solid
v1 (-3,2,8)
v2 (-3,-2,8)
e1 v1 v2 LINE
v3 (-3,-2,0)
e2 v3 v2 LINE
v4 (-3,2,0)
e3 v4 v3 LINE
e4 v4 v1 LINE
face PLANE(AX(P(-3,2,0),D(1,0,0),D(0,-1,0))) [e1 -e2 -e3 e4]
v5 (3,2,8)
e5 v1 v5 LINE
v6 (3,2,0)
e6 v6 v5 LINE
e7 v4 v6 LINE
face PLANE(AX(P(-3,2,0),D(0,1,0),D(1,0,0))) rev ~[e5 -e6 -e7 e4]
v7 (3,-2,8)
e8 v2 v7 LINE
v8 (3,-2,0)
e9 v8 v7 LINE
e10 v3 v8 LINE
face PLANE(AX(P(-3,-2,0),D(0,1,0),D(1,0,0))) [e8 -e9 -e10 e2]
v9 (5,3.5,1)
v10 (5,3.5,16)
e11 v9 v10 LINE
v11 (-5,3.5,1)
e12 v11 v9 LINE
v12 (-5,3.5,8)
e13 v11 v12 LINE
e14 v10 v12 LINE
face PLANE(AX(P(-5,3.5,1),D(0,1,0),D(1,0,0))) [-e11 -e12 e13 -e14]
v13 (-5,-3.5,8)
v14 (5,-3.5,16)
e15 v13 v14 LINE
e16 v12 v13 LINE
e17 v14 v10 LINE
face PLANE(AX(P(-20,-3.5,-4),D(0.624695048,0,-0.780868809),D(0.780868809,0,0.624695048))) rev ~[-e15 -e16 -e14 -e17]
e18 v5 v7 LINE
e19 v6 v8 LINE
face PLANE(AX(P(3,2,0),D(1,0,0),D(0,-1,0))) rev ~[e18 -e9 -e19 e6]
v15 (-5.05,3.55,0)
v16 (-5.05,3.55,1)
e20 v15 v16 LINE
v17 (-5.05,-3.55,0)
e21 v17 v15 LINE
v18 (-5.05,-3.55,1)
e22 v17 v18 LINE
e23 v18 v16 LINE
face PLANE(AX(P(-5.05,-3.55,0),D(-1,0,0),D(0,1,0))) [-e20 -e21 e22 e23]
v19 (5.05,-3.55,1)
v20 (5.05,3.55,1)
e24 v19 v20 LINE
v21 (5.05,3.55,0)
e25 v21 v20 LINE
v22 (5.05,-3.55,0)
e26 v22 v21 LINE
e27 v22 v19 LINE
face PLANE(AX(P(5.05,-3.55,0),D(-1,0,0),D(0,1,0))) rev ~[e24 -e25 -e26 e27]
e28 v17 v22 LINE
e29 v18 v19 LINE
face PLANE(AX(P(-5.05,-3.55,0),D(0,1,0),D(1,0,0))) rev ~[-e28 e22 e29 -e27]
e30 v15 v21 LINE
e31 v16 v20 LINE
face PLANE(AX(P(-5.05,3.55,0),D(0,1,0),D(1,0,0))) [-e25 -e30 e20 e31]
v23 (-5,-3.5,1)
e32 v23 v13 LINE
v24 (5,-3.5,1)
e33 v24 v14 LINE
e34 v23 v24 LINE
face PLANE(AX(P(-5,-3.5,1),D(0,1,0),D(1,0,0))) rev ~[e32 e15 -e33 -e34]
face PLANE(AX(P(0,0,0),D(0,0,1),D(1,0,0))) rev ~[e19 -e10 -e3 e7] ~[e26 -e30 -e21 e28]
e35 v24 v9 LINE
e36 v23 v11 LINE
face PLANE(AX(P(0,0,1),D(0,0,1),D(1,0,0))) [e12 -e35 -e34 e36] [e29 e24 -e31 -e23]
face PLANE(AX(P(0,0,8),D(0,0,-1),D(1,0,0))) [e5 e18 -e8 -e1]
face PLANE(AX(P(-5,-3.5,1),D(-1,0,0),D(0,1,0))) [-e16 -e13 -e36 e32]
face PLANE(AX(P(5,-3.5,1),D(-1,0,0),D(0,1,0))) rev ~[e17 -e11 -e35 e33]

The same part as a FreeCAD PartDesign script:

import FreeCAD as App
import Part
import Sketcher

V = App.Vector


def add_polygon(sketch, points):
    """Adds a closed chain of lines whose ends are joined by coincident constraints."""
    first, n = sketch.GeometryCount, len(points)
    for a, b in zip(points, points[1:] + points[:1]):
        sketch.addGeometry(Part.LineSegment(App.Vector(*a, 0), App.Vector(*b, 0)), False)
    for i in range(n):
        sketch.addConstraint(Sketcher.Constraint("Coincident", first + i, 2, first + (i + 1) % n, 1))

doc = App.newDocument("Part")
params = doc.addObject("Spreadsheet::Sheet", "Params")
for row, (alias, value) in enumerate([
    ("sketch1_width", "10.1 mm"),
    ("sketch1_height", "7.1 mm"),
    ("pad1_length", "1 mm"),
    ("sketch2_width", "10 mm"),
    ("sketch2_height", "7 mm"),
    ("pad2_length", "15 mm"),
    ("sketch3_width", "25 mm"),
    ("sketch3_height", "20 mm"),
    ("sketch4_width", "6 mm"),
    ("sketch4_height", "4 mm"),
    ("pocket2_length", "8 mm"),
], start=1):
    params.set(f"A{row}", alias)
    params.set(f"B{row}", "=" + value)
    params.setAlias(f"B{row}", alias)

body = doc.addObject("PartDesign::Body", "Body")

sketch1 = body.newObject("Sketcher::SketchObject", "Sketch")
sketch1.AttachmentSupport = (doc.getObject("XY_Plane"), [""])
sketch1.MapMode = "FlatFace"
add_polygon(sketch1, [(-5, 4), (-5, -4), (5, -4), (5, 4)])
sketch1.addConstraint([
    Sketcher.Constraint("Vertical", 0),
    Sketcher.Constraint("Horizontal", 1),
    Sketcher.Constraint("Vertical", 2),
    Sketcher.Constraint("Horizontal", 3),
    Sketcher.Constraint("Symmetric", 0, 2, 2, 2, -1, 1),
    Sketcher.Constraint("DistanceX", 1, 1, 1, 2, 10.1),
    Sketcher.Constraint("DistanceY", 0, 2, 0, 1, 7.1),
])
sketch1.setExpression("Constraints[9]", "Params.sketch1_width")
sketch1.setExpression("Constraints[10]", "Params.sketch1_height")
pad1 = body.newObject("PartDesign::Pad", "Pad")
pad1.Profile = sketch1
pad1.setExpression("Length", "Params.pad1_length")

sketch2 = body.newObject("Sketcher::SketchObject", "Sketch001")
sketch2.AttachmentSupport = (doc.getObject("XY_Plane"), [""])
sketch2.MapMode = "FlatFace"
sketch2.AttachmentOffset = App.Placement(V(0, 0, 1), App.Rotation())
add_polygon(sketch2, [(-5, 4), (-5, -4), (5, -4), (5, 4)])
sketch2.addConstraint([
    Sketcher.Constraint("Vertical", 0),
    Sketcher.Constraint("Horizontal", 1),
    Sketcher.Constraint("Vertical", 2),
    Sketcher.Constraint("Horizontal", 3),
    Sketcher.Constraint("Symmetric", 0, 2, 2, 2, -1, 1),
    Sketcher.Constraint("DistanceX", 1, 1, 1, 2, 10.0),
    Sketcher.Constraint("DistanceY", 0, 2, 0, 1, 7.0),
])
sketch2.setExpression("Constraints[9]", "Params.sketch2_width")
sketch2.setExpression("Constraints[10]", "Params.sketch2_height")
pad2 = body.newObject("PartDesign::Pad", "Pad001")
pad2.Profile = sketch2
pad2.setExpression("Length", "Params.pad2_length")

sketch3 = body.newObject("Sketcher::SketchObject", "Sketch002")
sketch3.AttachmentSupport = (doc.getObject("XZ_Plane"), [""])
sketch3.MapMode = "FlatFace"
sketch3.AttachmentOffset = App.Placement(V(0, 0, 3.5), App.Rotation())
add_polygon(sketch3, [(5, 16), (-20, 16), (-20, -4)])
sketch3.addConstraint([
    Sketcher.Constraint("Horizontal", 0),
    Sketcher.Constraint("Vertical", 1),
    Sketcher.Constraint("DistanceX", 0, 2, 0, 1, 25.0),
    Sketcher.Constraint("DistanceY", 1, 2, 1, 1, 20.0),
    Sketcher.Constraint("DistanceX", 0, 2, -1, 1, 20.0),
    Sketcher.Constraint("DistanceY", -1, 1, 0, 2, 16.0),
])
sketch3.setExpression("Constraints[5]", "Params.sketch3_width")
sketch3.setExpression("Constraints[6]", "Params.sketch3_height")
pocket1 = body.newObject("PartDesign::Pocket", "Pocket")
pocket1.Profile = sketch3
pocket1.Type = "ThroughAll"

sketch4 = body.newObject("Sketcher::SketchObject", "Sketch003")
sketch4.AttachmentSupport = (doc.getObject("XY_Plane"), [""])
sketch4.MapMode = "FlatFace"
add_polygon(sketch4, [(-3, -2), (-3, 2), (3, 2), (3, -2)])
sketch4.addConstraint([
    Sketcher.Constraint("Vertical", 0),
    Sketcher.Constraint("Horizontal", 1),
    Sketcher.Constraint("Vertical", 2),
    Sketcher.Constraint("Horizontal", 3),
    Sketcher.Constraint("Symmetric", 0, 2, 2, 2, -1, 1),
    Sketcher.Constraint("DistanceX", 1, 1, 1, 2, 6.0),
    Sketcher.Constraint("DistanceY", 0, 1, 0, 2, 4.0),
])
sketch4.setExpression("Constraints[9]", "Params.sketch4_width")
sketch4.setExpression("Constraints[10]", "Params.sketch4_height")
pocket2 = body.newObject("PartDesign::Pocket", "Pocket001")
pocket2.Profile = sketch4
pocket2.setExpression("Length", "Params.pocket2_length")
pocket2.Reversed = True

doc.recompute()
